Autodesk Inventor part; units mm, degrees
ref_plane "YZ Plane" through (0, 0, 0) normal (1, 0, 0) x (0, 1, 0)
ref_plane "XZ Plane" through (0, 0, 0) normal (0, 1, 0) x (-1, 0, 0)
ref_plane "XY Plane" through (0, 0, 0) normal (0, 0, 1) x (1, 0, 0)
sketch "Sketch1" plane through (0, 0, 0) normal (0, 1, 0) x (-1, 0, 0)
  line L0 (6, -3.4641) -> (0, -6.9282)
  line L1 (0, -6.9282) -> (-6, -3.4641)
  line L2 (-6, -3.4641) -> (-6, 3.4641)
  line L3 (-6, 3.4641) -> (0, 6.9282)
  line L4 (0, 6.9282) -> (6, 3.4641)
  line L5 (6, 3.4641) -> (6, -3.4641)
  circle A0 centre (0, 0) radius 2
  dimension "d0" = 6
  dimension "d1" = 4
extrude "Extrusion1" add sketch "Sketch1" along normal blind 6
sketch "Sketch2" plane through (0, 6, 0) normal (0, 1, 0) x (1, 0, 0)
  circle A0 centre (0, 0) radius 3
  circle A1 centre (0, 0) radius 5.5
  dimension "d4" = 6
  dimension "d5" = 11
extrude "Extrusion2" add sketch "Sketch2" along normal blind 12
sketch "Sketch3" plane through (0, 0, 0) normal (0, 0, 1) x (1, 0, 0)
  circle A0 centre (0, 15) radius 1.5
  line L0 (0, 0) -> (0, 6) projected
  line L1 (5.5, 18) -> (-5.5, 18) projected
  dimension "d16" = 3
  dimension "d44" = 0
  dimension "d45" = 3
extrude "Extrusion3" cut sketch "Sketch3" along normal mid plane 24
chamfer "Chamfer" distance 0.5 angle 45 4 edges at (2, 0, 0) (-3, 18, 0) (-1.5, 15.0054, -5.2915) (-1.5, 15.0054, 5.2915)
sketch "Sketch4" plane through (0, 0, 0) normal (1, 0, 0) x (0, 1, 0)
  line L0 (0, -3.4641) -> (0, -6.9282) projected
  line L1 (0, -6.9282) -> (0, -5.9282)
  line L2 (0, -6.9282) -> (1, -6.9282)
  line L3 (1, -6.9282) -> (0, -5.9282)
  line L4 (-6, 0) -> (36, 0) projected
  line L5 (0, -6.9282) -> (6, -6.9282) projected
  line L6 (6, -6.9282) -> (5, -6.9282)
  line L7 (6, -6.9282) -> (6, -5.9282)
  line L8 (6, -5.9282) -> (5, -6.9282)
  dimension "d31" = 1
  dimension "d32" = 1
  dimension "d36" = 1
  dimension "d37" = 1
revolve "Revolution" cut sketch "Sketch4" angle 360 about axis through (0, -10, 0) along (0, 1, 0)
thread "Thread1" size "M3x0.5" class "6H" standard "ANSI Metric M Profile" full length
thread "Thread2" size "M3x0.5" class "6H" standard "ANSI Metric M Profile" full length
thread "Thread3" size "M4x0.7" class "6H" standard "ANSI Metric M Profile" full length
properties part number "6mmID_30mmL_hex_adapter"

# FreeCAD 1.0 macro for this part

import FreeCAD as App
import Part
import Sketcher
Q = App.Units.Quantity


def edges_at(feature, points):
    """Names of the edges that pass closest to the given points."""
    edges = feature.Shape.Edges
    near = lambda p: min(range(len(edges)), key=lambda i: edges[i].distToShape(Part.Vertex(*p))[0])
    return sorted({f"Edge{near(p) + 1}" for p in points})

doc = App.newDocument("Part")
params = doc.addObject("Spreadsheet::Sheet", "Params")
for row, (alias, value) in enumerate([
    ("sketch1_diameter", "4 mm"),
    ("pad1_length", "6 mm"),
    ("sketch2_diameter", "11 mm"),
    ("sketch2_diameter2", "6 mm"),
    ("pad2_length", "12 mm"),
    ("sketch3_diameter", "3 mm"),
    ("pocket1_length", "24 mm"),
    ("chamfer_size", "0.5 mm"),
    ("sketch4_width", "1 mm"),
    ("groove_angle", "360 deg"),
], start=1):
    params.set(f"A{row}", alias)
    params.set(f"B{row}", "=" + value)
    params.setAlias(f"B{row}", alias)

body = doc.addObject("PartDesign::Body", "Body")

# Sketch on XZ plane
sketch1 = body.newObject("Sketcher::SketchObject", "Sketch")
sketch1.AttachmentSupport = (doc.getObject("XZ_Plane"), [""])
sketch1.MapMode = "FlatFace"
sketch1.addGeometry(Part.LineSegment(App.Vector(0, -6.9282, 0), App.Vector(-6, -3.4641, 0)), False)
sketch1.addGeometry(Part.LineSegment(App.Vector(-6, -3.4641, 0), App.Vector(-6, 3.4641, 0)), False)
sketch1.addGeometry(Part.LineSegment(App.Vector(-6, 3.4641, 0), App.Vector(0, 6.9282, 0)), False)
sketch1.addGeometry(Part.LineSegment(App.Vector(0, 6.9282, 0), App.Vector(6, 3.4641, 0)), False)
sketch1.addGeometry(Part.LineSegment(App.Vector(6, 3.4641, 0), App.Vector(6, -3.4641, 0)), False)
sketch1.addGeometry(Part.LineSegment(App.Vector(6, -3.4641, 0), App.Vector(0, -6.9282, 0)), False)
sketch1.addGeometry(Part.Circle(App.Vector(0, 0, 0), App.Vector(0, 0, 1), 2), False)
sketch1.addConstraint(Sketcher.Constraint("Coincident", 0, 2, 1, 1))
sketch1.addConstraint(Sketcher.Constraint("Coincident", 1, 2, 2, 1))
sketch1.addConstraint(Sketcher.Constraint("Coincident", 2, 2, 3, 1))
sketch1.addConstraint(Sketcher.Constraint("Coincident", 3, 2, 4, 1))
sketch1.addConstraint(Sketcher.Constraint("Coincident", 4, 2, 5, 1))
sketch1.addConstraint(Sketcher.Constraint("Coincident", 5, 2, 0, 1))
sketch1.addConstraint(Sketcher.Constraint("Vertical", 1))
sketch1.addConstraint(Sketcher.Constraint("Vertical", 4))
sketch1.addConstraint(Sketcher.Constraint("Coincident", 6, 3, -1, 1))
sketch1.addConstraint(Sketcher.Constraint("Symmetric", 0, 2, 3, 2, -1, 1))
sketch1.addConstraint(Sketcher.Constraint("Symmetric", 2, 2, 5, 2, -1, 1))
sketch1.addConstraint(Sketcher.Constraint("PointOnObject", 2, 2, -2))
sketch1.addConstraint(Sketcher.Constraint("Parallel", 2, 5))
sketch1.addConstraint(Sketcher.Constraint("Horizontal", 1, 2, 3, 2))
sketch1.addConstraint(Sketcher.Constraint("Diameter", 6, Q("4 mm")))
sketch1.addConstraint(Sketcher.Constraint("DistanceX", 0, 2, -1, 1, Q("6 mm")))
sketch1.addConstraint(Sketcher.Constraint("Angle", 0, Q("150 deg")))
sketch1.addConstraint(Sketcher.Constraint("DistanceY", 1, 1, 1, 2, Q("6.9282 mm")))
sketch1.setExpression("Constraints[14]", "Params.sketch1_diameter")
pad1 = body.newObject("PartDesign::Pad", "Pad")
pad1.Profile = sketch1
pad1.setExpression("Length", "Params.pad1_length")
pad1.Reversed = True

# Sketch on XZ plane
sketch2 = body.newObject("Sketcher::SketchObject", "Sketch001")
sketch2.AttachmentSupport = (doc.getObject("XZ_Plane"), [""])
sketch2.MapMode = "FlatFace"
sketch2.AttachmentOffset = App.Placement(App.Vector(0, 0, -6), App.Rotation())
sketch2.addGeometry(Part.Circle(App.Vector(0, 0, 0), App.Vector(0, 0, 1), 5.5), False)
sketch2.addGeometry(Part.Circle(App.Vector(0, 0, 0), App.Vector(0, 0, 1), 3), False)
sketch2.addConstraint(Sketcher.Constraint("Coincident", 0, 3, -1, 1))
sketch2.addConstraint(Sketcher.Constraint("Coincident", 1, 3, -1, 1))
sketch2.addConstraint(Sketcher.Constraint("Diameter", 0, Q("11 mm")))
sketch2.addConstraint(Sketcher.Constraint("Diameter", 1, Q("6 mm")))
sketch2.setExpression("Constraints[2]", "Params.sketch2_diameter")
sketch2.setExpression("Constraints[3]", "Params.sketch2_diameter2")
pad2 = body.newObject("PartDesign::Pad", "Pad001")
pad2.Profile = sketch2
pad2.setExpression("Length", "Params.pad2_length")
pad2.Reversed = True

# Sketch on XY plane
sketch3 = body.newObject("Sketcher::SketchObject", "Sketch002")
sketch3.AttachmentSupport = (doc.getObject("XY_Plane"), [""])
sketch3.MapMode = "FlatFace"
sketch3.addGeometry(Part.Circle(App.Vector(0, 15, 0), App.Vector(0, 0, 1), 1.5), False)
sketch3.addConstraint(Sketcher.Constraint("PointOnObject", 0, 3, -2))
sketch3.addConstraint(Sketcher.Constraint("Diameter", 0, Q("3 mm")))
sketch3.addConstraint(Sketcher.Constraint("DistanceY", -1, 1, 0, 3, Q("15 mm")))
sketch3.setExpression("Constraints[1]", "Params.sketch3_diameter")
pocket1 = body.newObject("PartDesign::Pocket", "Pocket")
pocket1.Profile = sketch3
pocket1.setExpression("Length", "Params.pocket1_length")
pocket1.Midplane = True
doc.recompute()

chamfer = body.newObject("PartDesign::Chamfer", "Chamfer")
chamfer.Base = (pocket1, edges_at(pocket1, [
    (2, 0, 0),
    (-3, 18, 0),
    (-1.5, 15.005, -5.292),
    (-1.5, 15.005, 5.292),
]))
chamfer.setExpression("Size", "Params.chamfer_size")

# Sketch on YZ plane
sketch4 = body.newObject("Sketcher::SketchObject", "Sketch003")
sketch4.AttachmentSupport = (doc.getObject("YZ_Plane"), [""])
sketch4.MapMode = "FlatFace"
sketch4.addGeometry(Part.LineSegment(App.Vector(1, -6.9282, 0), App.Vector(0, -5.9282, 0)), False)
sketch4.addGeometry(Part.LineSegment(App.Vector(0, -5.9282, 0), App.Vector(0, -6.9282, 0)), False)
sketch4.addGeometry(Part.LineSegment(App.Vector(0, -6.9282, 0), App.Vector(1, -6.9282, 0)), False)
sketch4.addGeometry(Part.LineSegment(App.Vector(6, -5.9282, 0), App.Vector(5, -6.9282, 0)), False)
sketch4.addGeometry(Part.LineSegment(App.Vector(5, -6.9282, 0), App.Vector(6, -6.9282, 0)), False)
sketch4.addGeometry(Part.LineSegment(App.Vector(6, -6.9282, 0), App.Vector(6, -5.9282, 0)), False)
sketch4.addConstraint(Sketcher.Constraint("Coincident", 0, 2, 1, 1))
sketch4.addConstraint(Sketcher.Constraint("Coincident", 1, 2, 2, 1))
sketch4.addConstraint(Sketcher.Constraint("Coincident", 2, 2, 0, 1))
sketch4.addConstraint(Sketcher.Constraint("Coincident", 3, 2, 4, 1))
sketch4.addConstraint(Sketcher.Constraint("Coincident", 4, 2, 5, 1))
sketch4.addConstraint(Sketcher.Constraint("Coincident", 5, 2, 3, 1))
sketch4.addConstraint(Sketcher.Constraint("Vertical", 1))
sketch4.addConstraint(Sketcher.Constraint("Horizontal", 2))
sketch4.addConstraint(Sketcher.Constraint("Horizontal", 4))
sketch4.addConstraint(Sketcher.Constraint("Vertical", 5))
sketch4.addConstraint(Sketcher.Constraint("PointOnObject", 0, 2, -2))
sketch4.addConstraint(Sketcher.Constraint("Perpendicular", 0, 3))
sketch4.addConstraint(Sketcher.Constraint("Horizontal", 2, 2, 3, 2))
sketch4.addConstraint(Sketcher.Constraint("Horizontal", 0, 2, 5, 2))
sketch4.addConstraint(Sketcher.Constraint("Equal", 2, 4))
sketch4.addConstraint(Sketcher.Constraint("DistanceX", 2, 1, 2, 2, Q("1 mm")))
sketch4.addConstraint(Sketcher.Constraint("DistanceX", -1, 1, 3, 2, Q("5 mm")))
sketch4.addConstraint(Sketcher.Constraint("DistanceY", 0, 2, -1, 1, Q("5.9282 mm")))
sketch4.setExpression("Constraints[15]", "Params.sketch4_width")
groove = body.newObject("PartDesign::Groove", "Groove")
groove.Profile = sketch4
groove.ReferenceAxis = (sketch4, ["H_Axis"])
groove.setExpression("Angle", "Params.groove_angle")

doc.recompute()
